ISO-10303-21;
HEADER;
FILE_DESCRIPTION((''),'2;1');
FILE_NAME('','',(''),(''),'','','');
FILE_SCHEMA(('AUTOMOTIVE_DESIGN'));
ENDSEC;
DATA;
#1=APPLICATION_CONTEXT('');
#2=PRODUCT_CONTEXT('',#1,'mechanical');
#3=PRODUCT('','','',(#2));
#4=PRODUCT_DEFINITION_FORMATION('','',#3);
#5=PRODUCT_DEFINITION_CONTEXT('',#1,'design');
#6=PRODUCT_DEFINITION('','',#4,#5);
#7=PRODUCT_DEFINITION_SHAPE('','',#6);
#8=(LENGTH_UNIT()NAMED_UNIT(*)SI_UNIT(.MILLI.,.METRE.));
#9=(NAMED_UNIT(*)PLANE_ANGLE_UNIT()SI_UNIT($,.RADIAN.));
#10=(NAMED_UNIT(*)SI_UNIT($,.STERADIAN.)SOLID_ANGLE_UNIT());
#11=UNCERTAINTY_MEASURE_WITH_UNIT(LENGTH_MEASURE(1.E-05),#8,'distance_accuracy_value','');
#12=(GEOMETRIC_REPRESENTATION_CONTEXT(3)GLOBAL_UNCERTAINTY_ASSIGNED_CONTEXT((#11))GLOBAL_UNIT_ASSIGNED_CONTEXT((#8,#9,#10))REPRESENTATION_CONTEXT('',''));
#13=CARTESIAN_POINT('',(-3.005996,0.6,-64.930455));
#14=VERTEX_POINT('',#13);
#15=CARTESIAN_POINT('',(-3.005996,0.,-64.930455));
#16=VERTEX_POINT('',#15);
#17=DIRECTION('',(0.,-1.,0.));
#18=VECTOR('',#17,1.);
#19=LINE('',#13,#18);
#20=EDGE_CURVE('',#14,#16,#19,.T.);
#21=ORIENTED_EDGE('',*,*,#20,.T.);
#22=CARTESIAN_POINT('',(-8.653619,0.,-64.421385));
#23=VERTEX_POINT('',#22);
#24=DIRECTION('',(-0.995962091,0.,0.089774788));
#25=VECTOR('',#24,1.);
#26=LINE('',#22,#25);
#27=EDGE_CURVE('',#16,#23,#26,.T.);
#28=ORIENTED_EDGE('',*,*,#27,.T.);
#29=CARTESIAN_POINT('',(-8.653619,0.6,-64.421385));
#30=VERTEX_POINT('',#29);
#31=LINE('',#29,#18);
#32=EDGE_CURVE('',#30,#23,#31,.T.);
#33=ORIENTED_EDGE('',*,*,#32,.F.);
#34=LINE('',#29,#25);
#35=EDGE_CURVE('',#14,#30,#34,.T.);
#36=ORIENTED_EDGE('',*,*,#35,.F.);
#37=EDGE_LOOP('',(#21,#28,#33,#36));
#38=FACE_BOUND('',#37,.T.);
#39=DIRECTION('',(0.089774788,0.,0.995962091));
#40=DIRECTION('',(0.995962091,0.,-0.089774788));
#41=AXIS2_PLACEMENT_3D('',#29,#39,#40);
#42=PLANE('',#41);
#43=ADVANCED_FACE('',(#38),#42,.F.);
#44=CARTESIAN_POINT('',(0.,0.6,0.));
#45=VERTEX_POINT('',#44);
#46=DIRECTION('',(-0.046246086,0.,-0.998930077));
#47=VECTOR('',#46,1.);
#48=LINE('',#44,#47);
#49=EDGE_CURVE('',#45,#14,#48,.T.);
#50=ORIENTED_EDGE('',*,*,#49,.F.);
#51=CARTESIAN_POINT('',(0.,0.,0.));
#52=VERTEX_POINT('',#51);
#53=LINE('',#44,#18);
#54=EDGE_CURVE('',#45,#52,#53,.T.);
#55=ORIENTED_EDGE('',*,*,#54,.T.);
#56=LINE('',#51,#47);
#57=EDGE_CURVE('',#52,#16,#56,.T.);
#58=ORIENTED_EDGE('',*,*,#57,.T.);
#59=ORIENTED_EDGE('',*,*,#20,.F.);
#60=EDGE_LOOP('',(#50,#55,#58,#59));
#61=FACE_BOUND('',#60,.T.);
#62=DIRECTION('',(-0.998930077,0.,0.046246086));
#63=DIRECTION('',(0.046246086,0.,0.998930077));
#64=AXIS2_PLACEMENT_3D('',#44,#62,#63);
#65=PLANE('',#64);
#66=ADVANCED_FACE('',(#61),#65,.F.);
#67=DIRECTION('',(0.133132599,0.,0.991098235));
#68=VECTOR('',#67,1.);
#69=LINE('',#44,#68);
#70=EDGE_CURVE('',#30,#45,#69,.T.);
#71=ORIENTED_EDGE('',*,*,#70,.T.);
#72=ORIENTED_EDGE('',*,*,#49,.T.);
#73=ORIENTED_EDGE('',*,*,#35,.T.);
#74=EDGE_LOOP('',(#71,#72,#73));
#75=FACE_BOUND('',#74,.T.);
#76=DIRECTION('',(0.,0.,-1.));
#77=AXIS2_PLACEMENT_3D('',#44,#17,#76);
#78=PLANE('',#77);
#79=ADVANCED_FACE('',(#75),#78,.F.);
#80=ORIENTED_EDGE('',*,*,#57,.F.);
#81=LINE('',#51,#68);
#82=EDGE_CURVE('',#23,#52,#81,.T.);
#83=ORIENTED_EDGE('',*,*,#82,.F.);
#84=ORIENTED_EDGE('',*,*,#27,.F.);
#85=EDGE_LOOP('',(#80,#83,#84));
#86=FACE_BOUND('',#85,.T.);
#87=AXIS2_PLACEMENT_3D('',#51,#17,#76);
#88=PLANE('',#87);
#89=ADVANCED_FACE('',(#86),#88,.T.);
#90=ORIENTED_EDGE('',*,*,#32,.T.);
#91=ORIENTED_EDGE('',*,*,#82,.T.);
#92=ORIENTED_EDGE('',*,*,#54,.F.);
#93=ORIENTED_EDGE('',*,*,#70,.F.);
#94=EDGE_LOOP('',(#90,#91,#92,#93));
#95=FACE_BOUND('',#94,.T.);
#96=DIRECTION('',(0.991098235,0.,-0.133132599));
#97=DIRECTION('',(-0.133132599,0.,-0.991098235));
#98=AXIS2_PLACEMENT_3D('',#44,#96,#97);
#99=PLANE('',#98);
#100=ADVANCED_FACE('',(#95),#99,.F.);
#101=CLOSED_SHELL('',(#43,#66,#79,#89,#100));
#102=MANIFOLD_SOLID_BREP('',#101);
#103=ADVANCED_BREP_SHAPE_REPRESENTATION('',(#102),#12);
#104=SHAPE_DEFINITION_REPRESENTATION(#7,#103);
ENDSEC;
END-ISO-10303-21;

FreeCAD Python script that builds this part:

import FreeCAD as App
import Part
import Sketcher
Q = App.Units.Quantity


def add_polygon(sketch, points):
    """Adds a closed chain of lines whose ends are joined by coincident constraints."""
    first, n = sketch.GeometryCount, len(points)
    for a, b in zip(points, points[1:] + points[:1]):
        sketch.addGeometry(Part.LineSegment(App.Vector(*a, 0), App.Vector(*b, 0)), False)
    for i in range(n):
        sketch.addConstraint(Sketcher.Constraint("Coincident", first + i, 2, first + (i + 1) % n, 1))

doc = App.newDocument("Part")
params = doc.addObject("Spreadsheet::Sheet", "Params")
for row, (alias, value) in enumerate([
    ("sketch1_length", "65 mm"),
    ("pad1_length", "0.6 mm"),
], start=1):
    params.set(f"A{row}", alias)
    params.set(f"B{row}", "=" + value)
    params.setAlias(f"B{row}", alias)

body = doc.addObject("PartDesign::Body", "Body")

# Sketch on XZ plane
sketch1 = body.newObject("Sketcher::SketchObject", "Sketch")
sketch1.AttachmentSupport = (doc.getObject("XZ_Plane"), [""])
sketch1.MapMode = "FlatFace"
add_polygon(sketch1, [(-9, -64), (0, 0), (-3, -65)])  # lines 0-2
sketch1.addConstraint([
    Sketcher.Constraint("Coincident", 0, 2, -1, 1),
    Sketcher.Constraint("Equal", 0, 1),
    Sketcher.Constraint("Distance", 0, Q("65 mm")),
    Sketcher.Constraint("Distance", 2, Q("5.67052 mm")),
    Sketcher.Constraint("DistanceX", 2, 2, -1, 1, Q("8.653619 mm")),
])
sketch1.setExpression("Constraints[5]", "Params.sketch1_length")
pad1 = body.newObject("PartDesign::Pad", "Pad")
pad1.Profile = sketch1
pad1.setExpression("Length", "Params.pad1_length")
pad1.Reversed = True

doc.recompute()
